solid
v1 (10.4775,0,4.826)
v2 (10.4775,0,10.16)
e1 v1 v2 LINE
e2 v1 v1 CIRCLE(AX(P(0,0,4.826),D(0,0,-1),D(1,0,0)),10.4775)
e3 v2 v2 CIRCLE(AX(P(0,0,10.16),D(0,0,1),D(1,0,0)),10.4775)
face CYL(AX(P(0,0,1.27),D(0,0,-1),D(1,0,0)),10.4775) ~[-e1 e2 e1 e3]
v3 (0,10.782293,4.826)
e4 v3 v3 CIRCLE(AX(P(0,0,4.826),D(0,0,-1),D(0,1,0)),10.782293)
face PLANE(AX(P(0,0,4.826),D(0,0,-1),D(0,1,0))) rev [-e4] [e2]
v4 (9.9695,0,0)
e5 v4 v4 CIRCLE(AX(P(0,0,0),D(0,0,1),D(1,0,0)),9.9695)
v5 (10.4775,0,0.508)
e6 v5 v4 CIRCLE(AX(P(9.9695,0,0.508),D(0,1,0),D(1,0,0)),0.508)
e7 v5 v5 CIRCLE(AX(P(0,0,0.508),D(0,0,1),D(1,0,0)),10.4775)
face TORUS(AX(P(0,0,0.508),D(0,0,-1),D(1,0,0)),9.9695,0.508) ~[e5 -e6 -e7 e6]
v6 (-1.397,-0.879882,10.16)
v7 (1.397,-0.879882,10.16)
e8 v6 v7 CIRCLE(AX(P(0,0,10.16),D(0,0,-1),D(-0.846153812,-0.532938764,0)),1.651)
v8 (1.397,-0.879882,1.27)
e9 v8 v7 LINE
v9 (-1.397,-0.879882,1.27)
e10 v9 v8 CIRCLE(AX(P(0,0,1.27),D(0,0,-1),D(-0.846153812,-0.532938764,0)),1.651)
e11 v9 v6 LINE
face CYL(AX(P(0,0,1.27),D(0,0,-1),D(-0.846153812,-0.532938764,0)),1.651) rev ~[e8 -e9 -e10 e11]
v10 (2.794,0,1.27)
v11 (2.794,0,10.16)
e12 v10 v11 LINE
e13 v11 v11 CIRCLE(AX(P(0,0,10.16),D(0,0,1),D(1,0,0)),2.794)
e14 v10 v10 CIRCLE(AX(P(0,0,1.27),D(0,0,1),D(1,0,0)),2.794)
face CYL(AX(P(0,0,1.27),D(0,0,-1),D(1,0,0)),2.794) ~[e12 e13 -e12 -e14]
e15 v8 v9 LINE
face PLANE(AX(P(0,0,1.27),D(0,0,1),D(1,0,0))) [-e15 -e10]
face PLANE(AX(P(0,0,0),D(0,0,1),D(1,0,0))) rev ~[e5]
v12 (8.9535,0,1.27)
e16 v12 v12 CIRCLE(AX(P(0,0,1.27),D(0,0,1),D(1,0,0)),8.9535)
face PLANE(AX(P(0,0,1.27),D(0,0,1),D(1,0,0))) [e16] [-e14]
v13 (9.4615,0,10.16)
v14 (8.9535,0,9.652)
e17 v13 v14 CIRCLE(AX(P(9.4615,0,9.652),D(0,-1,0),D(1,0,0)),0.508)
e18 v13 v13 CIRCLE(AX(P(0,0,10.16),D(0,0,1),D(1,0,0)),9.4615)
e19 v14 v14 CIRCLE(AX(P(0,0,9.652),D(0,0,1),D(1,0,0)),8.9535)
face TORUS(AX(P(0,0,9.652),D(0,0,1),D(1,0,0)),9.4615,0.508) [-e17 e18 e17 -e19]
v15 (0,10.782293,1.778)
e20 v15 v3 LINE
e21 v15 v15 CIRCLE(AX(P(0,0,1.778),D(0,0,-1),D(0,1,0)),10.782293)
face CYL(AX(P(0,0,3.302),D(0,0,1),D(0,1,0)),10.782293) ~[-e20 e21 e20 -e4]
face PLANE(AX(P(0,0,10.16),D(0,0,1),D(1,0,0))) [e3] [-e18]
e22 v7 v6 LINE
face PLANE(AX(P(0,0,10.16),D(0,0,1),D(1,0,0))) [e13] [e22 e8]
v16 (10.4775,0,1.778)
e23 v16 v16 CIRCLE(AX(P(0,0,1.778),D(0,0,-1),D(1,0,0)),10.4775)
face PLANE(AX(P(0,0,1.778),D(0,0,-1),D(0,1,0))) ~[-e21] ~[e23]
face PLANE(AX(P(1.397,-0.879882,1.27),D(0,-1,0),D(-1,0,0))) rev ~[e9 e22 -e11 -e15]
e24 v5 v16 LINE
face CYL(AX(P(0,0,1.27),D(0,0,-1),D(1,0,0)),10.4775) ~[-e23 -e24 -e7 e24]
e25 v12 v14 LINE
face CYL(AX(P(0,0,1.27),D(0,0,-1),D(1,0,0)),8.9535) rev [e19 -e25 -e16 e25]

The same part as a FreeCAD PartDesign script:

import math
import FreeCAD as App
import Part
import Sketcher

V = App.Vector
Q = App.Units.Quantity


def edges_at(feature, points):
    """Names of the edges that pass closest to the given points."""
    edges = feature.Shape.Edges
    near = lambda p: min(range(len(edges)), key=lambda i: edges[i].distToShape(Part.Vertex(*p))[0])
    return sorted({f"Edge{near(p) + 1}" for p in points})

doc = App.newDocument("Part")
body = doc.addObject("PartDesign::Body", "Body")

sketch1 = body.newObject("Sketcher::SketchObject", "Sketch")
sketch1.AttachmentSupport = (doc.getObject("XY_Plane"), [""])
sketch1.MapMode = "FlatFace"
sketch1.addGeometry(Part.Circle(V(0, 0, 0), V(0, 0, 1), 10.4775), False)
sketch1.addConstraint(Sketcher.Constraint("Coincident", 0, 3, -1, 1))
sketch1.addConstraint(Sketcher.Constraint("Diameter", 0, Q("0.825 in")))
pad1 = body.newObject("PartDesign::Pad", "Pad")
pad1.Profile = sketch1
pad1.Length = Q("0.05 in")

sketch2 = body.newObject("Sketcher::SketchObject", "Sketch001")
sketch2.AttachmentSupport = (doc.getObject("XY_Plane"), [""])
sketch2.MapMode = "FlatFace"
sketch2.AttachmentOffset = App.Placement(V(0, 0, 0.05 * 25.4), App.Rotation())
sketch2.addGeometry(Part.Circle(V(0, 0, 0), V(0, 0, 1), 10.4775), False)
sketch2.addGeometry(Part.Circle(V(0, 0, 0), V(0, 0, 1), 8.9535), False)
sketch2.addGeometry(Part.Circle(V(0, 0, 0), V(0, 0, 1), 2.794), False)
sketch2.addGeometry(Part.LineSegment(V(1.397, -0.879882, 0), V(-1.397, -0.879882, 0)), False)
sketch2.addGeometry(Part.ArcOfCircle(Part.Circle(V(0, 0, 0), V(0, 0, 1), 1.651), math.radians(-32.204231), math.radians(212.204231)), False)
sketch2.addConstraint(Sketcher.Constraint("Coincident", 3, 1, 4, 1))
sketch2.addConstraint(Sketcher.Constraint("Coincident", 4, 2, 3, 2))
sketch2.addConstraint(Sketcher.Constraint("Horizontal", 3))
sketch2.addConstraint(Sketcher.Constraint("Coincident", 0, 3, -1, 1))
sketch2.addConstraint(Sketcher.Constraint("Coincident", 1, 3, -1, 1))
sketch2.addConstraint(Sketcher.Constraint("Coincident", 2, 3, -1, 1))
sketch2.addConstraint(Sketcher.Constraint("Coincident", 4, 3, -1, 1))
sketch2.addConstraint(Sketcher.Constraint("Diameter", 2, Q("0.22 in")))
sketch2.addConstraint(Sketcher.Constraint("Diameter", 0, Q("0.825 in")))
sketch2.addConstraint(Sketcher.Constraint("Diameter", 1, Q("0.705 in")))
sketch2.addConstraint(Sketcher.Constraint("Radius", 4, Q("0.065 in")))
sketch2.addConstraint(Sketcher.Constraint("DistanceX", 3, 2, 3, 1, Q("0.11 in")))
pad2 = body.newObject("PartDesign::Pad", "Pad001")
pad2.Profile = sketch2
pad2.Length = Q("0.35 in")

sketch3 = body.newObject("Sketcher::SketchObject", "Sketch002")
sketch3.AttachmentSupport = (doc.getObject("YZ_Plane"), [""])
sketch3.MapMode = "FlatFace"
sketch3.addGeometry(Part.LineSegment(V(10.477493, 4.826, 0), V(10.477493, 1.778, 0)), False)
sketch3.addGeometry(Part.LineSegment(V(10.477493, 1.778, 0), V(10.782293, 1.778, 0)), False)
sketch3.addGeometry(Part.LineSegment(V(10.782293, 1.778, 0), V(10.782293, 4.826, 0)), False)
sketch3.addGeometry(Part.LineSegment(V(10.782293, 4.826, 0), V(10.477493, 4.826, 0)), False)
sketch3.addConstraint(Sketcher.Constraint("Coincident", 0, 2, 1, 1))
sketch3.addConstraint(Sketcher.Constraint("Coincident", 1, 2, 2, 1))
sketch3.addConstraint(Sketcher.Constraint("Coincident", 2, 2, 3, 1))
sketch3.addConstraint(Sketcher.Constraint("Coincident", 3, 2, 0, 1))
sketch3.addConstraint(Sketcher.Constraint("Vertical", 0))
sketch3.addConstraint(Sketcher.Constraint("Horizontal", 1))
sketch3.addConstraint(Sketcher.Constraint("Vertical", 2))
sketch3.addConstraint(Sketcher.Constraint("Horizontal", 3))
sketch3.addConstraint(Sketcher.Constraint("DistanceY", 0, 2, 0, 1, Q("0.12 in")))
sketch3.addConstraint(Sketcher.Constraint("DistanceX", 1, 1, 1, 2, Q("0.012 in")))
sketch3.addConstraint(Sketcher.Constraint("DistanceY", -1, 1, 0, 2, Q("0.07 in")))
sketch3.addConstraint(Sketcher.Constraint("DistanceX", -1, 1, 0, 2, Q("10.477493 mm")))
revolution = body.newObject("PartDesign::Revolution", "Revolution")
revolution.Profile = sketch3
revolution.ReferenceAxis = (sketch3, ["V_Axis"])
revolution.Angle = 360
doc.recompute()

fillet = body.newObject("PartDesign::Fillet", "Fillet")
fillet.Base = (revolution, edges_at(revolution, [(-10.477, 0, 0), (-8.954, 0, 10.16)]))
fillet.Radius = Q("0.02 in")

doc.recompute()
